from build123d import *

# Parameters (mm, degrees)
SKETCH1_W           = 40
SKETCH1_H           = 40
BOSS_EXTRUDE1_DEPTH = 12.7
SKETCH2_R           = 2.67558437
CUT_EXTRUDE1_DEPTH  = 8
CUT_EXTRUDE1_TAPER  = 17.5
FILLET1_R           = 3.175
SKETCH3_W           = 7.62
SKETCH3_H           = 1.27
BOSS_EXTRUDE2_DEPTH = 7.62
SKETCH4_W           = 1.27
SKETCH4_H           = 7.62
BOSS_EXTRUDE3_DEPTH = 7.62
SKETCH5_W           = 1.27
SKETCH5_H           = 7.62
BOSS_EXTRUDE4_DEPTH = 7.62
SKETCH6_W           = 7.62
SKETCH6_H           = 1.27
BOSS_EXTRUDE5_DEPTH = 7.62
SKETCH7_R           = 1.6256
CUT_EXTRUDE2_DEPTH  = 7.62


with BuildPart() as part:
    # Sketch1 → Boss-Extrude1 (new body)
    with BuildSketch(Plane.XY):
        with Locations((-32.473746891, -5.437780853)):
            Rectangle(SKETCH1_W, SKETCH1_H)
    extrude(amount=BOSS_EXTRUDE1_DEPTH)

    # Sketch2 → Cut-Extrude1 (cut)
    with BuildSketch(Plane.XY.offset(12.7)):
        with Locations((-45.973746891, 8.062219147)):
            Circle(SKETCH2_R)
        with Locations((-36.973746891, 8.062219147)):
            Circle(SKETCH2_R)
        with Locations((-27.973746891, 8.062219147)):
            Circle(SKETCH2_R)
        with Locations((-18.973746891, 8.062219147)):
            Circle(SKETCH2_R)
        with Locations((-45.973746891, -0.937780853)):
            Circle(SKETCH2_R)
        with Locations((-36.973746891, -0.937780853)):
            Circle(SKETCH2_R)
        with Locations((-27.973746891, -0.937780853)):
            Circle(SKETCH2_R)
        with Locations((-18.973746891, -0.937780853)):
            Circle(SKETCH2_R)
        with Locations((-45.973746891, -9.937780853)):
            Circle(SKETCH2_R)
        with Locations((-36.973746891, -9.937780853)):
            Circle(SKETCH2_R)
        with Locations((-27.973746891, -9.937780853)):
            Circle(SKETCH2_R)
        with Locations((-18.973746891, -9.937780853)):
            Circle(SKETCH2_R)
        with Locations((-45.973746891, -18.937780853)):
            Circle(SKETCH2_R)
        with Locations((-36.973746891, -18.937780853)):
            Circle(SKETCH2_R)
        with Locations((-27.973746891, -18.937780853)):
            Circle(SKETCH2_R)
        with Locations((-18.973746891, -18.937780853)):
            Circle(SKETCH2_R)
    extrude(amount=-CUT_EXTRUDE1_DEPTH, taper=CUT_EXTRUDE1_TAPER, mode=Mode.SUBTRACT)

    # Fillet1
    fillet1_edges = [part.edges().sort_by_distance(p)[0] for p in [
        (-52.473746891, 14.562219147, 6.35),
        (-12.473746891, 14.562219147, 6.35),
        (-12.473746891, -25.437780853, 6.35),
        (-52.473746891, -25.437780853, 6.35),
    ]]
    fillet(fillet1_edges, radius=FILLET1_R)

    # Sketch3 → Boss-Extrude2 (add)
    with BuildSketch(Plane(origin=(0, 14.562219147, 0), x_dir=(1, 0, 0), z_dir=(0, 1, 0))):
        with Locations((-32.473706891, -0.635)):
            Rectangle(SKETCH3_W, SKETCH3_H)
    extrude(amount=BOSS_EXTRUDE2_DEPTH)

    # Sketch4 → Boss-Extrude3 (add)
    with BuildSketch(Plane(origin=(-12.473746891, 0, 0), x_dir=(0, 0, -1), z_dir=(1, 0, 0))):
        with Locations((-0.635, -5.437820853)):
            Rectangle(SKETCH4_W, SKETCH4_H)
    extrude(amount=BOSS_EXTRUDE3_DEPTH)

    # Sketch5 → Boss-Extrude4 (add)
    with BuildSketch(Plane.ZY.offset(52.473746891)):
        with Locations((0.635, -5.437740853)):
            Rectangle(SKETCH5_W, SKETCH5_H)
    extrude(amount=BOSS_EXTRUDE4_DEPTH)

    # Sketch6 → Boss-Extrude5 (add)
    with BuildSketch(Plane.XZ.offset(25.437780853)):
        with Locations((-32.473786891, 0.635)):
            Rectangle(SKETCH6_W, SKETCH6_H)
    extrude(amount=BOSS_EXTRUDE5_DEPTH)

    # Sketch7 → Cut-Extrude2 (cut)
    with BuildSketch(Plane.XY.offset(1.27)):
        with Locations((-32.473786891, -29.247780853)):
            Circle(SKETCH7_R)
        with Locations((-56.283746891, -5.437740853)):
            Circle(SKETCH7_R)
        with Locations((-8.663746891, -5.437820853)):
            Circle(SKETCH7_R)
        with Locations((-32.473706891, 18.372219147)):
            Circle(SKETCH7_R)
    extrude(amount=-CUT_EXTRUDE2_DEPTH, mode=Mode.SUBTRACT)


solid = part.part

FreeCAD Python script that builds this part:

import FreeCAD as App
import Part
import Sketcher
Q = App.Units.Quantity


def edges_at(feature, points):
    """Names of the edges that pass closest to the given points."""
    edges = feature.Shape.Edges
    near = lambda p: min(range(len(edges)), key=lambda i: edges[i].distToShape(Part.Vertex(*p))[0])
    return sorted({f"Edge{near(p) + 1}" for p in points})

doc = App.newDocument("Part")
body = doc.addObject("PartDesign::Body", "Body")

# Sketch on XY plane
sketch1 = body.newObject("Sketcher::SketchObject", "Sketch")
sketch1.AttachmentSupport = (doc.getObject("XY_Plane"), [""])
sketch1.MapMode = "FlatFace"
sketch1.addGeometry([
    Part.LineSegment(App.Vector(-52.473747, 14.562219, 0), App.Vector(-52.473747, -25.437781, 0)),
    Part.LineSegment(App.Vector(-52.473747, -25.437781, 0), App.Vector(-12.473747, -25.437781, 0)),
    Part.LineSegment(App.Vector(-12.473747, -25.437781, 0), App.Vector(-12.473747, 14.562219, 0)),
    Part.LineSegment(App.Vector(-12.473747, 14.562219, 0), App.Vector(-52.473747, 14.562219, 0)),
], False)
sketch1.addConstraint([
    Sketcher.Constraint("Coincident", 0, 2, 1, 1),
    Sketcher.Constraint("Coincident", 1, 2, 2, 1),
    Sketcher.Constraint("Coincident", 2, 2, 3, 1),
    Sketcher.Constraint("Coincident", 3, 2, 0, 1),
    Sketcher.Constraint("Vertical", 0),
    Sketcher.Constraint("Horizontal", 1),
    Sketcher.Constraint("Vertical", 2),
    Sketcher.Constraint("Horizontal", 3),
    Sketcher.Constraint("Equal", 3, 0),
    Sketcher.Constraint("DistanceX", 1, 1, 1, 2, Q("40 mm")),
    Sketcher.Constraint("DistanceY", 0, 2, -1, 1, Q("25.437781 mm")),
    Sketcher.Constraint("DistanceX", 0, 2, -1, 1, Q("52.473747 mm")),
])
pad1 = body.newObject("PartDesign::Pad", "Pad")
pad1.Profile = sketch1
pad1.Length = Q("0.5 in")

# Sketch on XY plane
sketch2 = body.newObject("Sketcher::SketchObject", "Sketch001")
sketch2.AttachmentSupport = (doc.getObject("XY_Plane"), [""])
sketch2.MapMode = "FlatFace"
sketch2.AttachmentOffset = App.Placement(App.Vector(0, 0, 0.5 * 25.4), App.Rotation())
sketch2.addGeometry([
    Part.Circle(App.Vector(-45.973747, 8.062219, 0), App.Vector(0, 0, 1), 2.675584),  # 0
    Part.Circle(App.Vector(-36.973747, 8.062219, 0), App.Vector(0, 0, 1), 2.675584),  # 1
    Part.Circle(App.Vector(-27.973747, 8.062219, 0), App.Vector(0, 0, 1), 2.675584),  # 2
    Part.Circle(App.Vector(-18.973747, 8.062219, 0), App.Vector(0, 0, 1), 2.675584),  # 3
    Part.Circle(App.Vector(-45.973747, -0.937781, 0), App.Vector(0, 0, 1), 2.675584),  # 4
    Part.Circle(App.Vector(-36.973747, -0.937781, 0), App.Vector(0, 0, 1), 2.675584),  # 5
    Part.Circle(App.Vector(-27.973747, -0.937781, 0), App.Vector(0, 0, 1), 2.675584),  # 6
    Part.Circle(App.Vector(-18.973747, -0.937781, 0), App.Vector(0, 0, 1), 2.675584),  # 7
    Part.Circle(App.Vector(-45.973747, -9.937781, 0), App.Vector(0, 0, 1), 2.675584),  # 8
    Part.Circle(App.Vector(-36.973747, -9.937781, 0), App.Vector(0, 0, 1), 2.675584),  # 9
    Part.Circle(App.Vector(-27.973747, -9.937781, 0), App.Vector(0, 0, 1), 2.675584),  # 10
    Part.Circle(App.Vector(-18.973747, -9.937781, 0), App.Vector(0, 0, 1), 2.675584),  # 11
    Part.Circle(App.Vector(-45.973747, -18.937781, 0), App.Vector(0, 0, 1), 2.675584),  # 12
    Part.Circle(App.Vector(-36.973747, -18.937781, 0), App.Vector(0, 0, 1), 2.675584),  # 13
    Part.Circle(App.Vector(-27.973747, -18.937781, 0), App.Vector(0, 0, 1), 2.675584),  # 14
    Part.Circle(App.Vector(-18.973747, -18.937781, 0), App.Vector(0, 0, 1), 2.675584),  # 15
], False)
sketch2.addConstraint([
    Sketcher.Constraint("Equal", 0, 1),
    Sketcher.Constraint("Equal", 1, 2),
    Sketcher.Constraint("Equal", 2, 3),
    Sketcher.Constraint("Equal", 3, 4),
    Sketcher.Constraint("Equal", 4, 5),
    Sketcher.Constraint("Equal", 5, 6),
    Sketcher.Constraint("Equal", 6, 7),
    Sketcher.Constraint("Equal", 7, 8),
    Sketcher.Constraint("Equal", 8, 9),
    Sketcher.Constraint("Equal", 9, 10),
    Sketcher.Constraint("Equal", 10, 11),
    Sketcher.Constraint("Equal", 11, 12),
    Sketcher.Constraint("Equal", 12, 13),
    Sketcher.Constraint("Equal", 13, 14),
    Sketcher.Constraint("Equal", 14, 15),
    Sketcher.Constraint("Horizontal", 0, 3, 1, 3),
    Sketcher.Constraint("Horizontal", 1, 3, 2, 3),
    Sketcher.Constraint("Horizontal", 2, 3, 3, 3),
    Sketcher.Constraint("Horizontal", 4, 3, 5, 3),
    Sketcher.Constraint("Horizontal", 5, 3, 6, 3),
    Sketcher.Constraint("Horizontal", 6, 3, 7, 3),
    Sketcher.Constraint("Horizontal", 8, 3, 9, 3),
    Sketcher.Constraint("Horizontal", 9, 3, 10, 3),
    Sketcher.Constraint("Horizontal", 10, 3, 11, 3),
    Sketcher.Constraint("Horizontal", 12, 3, 13, 3),
    Sketcher.Constraint("Horizontal", 13, 3, 14, 3),
    Sketcher.Constraint("Horizontal", 14, 3, 15, 3),
    Sketcher.Constraint("Vertical", 0, 3, 4, 3),
    Sketcher.Constraint("Vertical", 1, 3, 5, 3),
    Sketcher.Constraint("Vertical", 2, 3, 6, 3),
    Sketcher.Constraint("Vertical", 3, 3, 7, 3),
    Sketcher.Constraint("Vertical", 4, 3, 8, 3),
    Sketcher.Constraint("Vertical", 5, 3, 9, 3),
    Sketcher.Constraint("Vertical", 6, 3, 10, 3),
    Sketcher.Constraint("Vertical", 7, 3, 11, 3),
    Sketcher.Constraint("Vertical", 8, 3, 12, 3),
    Sketcher.Constraint("Vertical", 9, 3, 13, 3),
    Sketcher.Constraint("Vertical", 10, 3, 14, 3),
    Sketcher.Constraint("Vertical", 11, 3, 15, 3),
    Sketcher.Constraint("Diameter", 0, Q("5.351169 mm")),
    Sketcher.Constraint("DistanceX", 0, 3, 1, 3, Q("9 mm")),
    Sketcher.Constraint("DistanceX", 1, 3, 2, 3, Q("9 mm")),
    Sketcher.Constraint("DistanceX", 2, 3, 3, 3, Q("9 mm")),
    Sketcher.Constraint("DistanceY", 4, 3, 0, 3, Q("9 mm")),
    Sketcher.Constraint("DistanceY", 8, 3, 4, 3, Q("9 mm")),
    Sketcher.Constraint("DistanceY", 12, 3, 8, 3, Q("9 mm")),
    Sketcher.Constraint("DistanceY", -1, 1, 0, 3, Q("8.062219 mm")),
    Sketcher.Constraint("DistanceX", 0, 3, -1, 1, Q("45.973747 mm")),
])
pocket1 = body.newObject("PartDesign::Pocket", "Pocket")
pocket1.Profile = sketch2
pocket1.Length = 8
pocket1.TaperAngle = -17.5
doc.recompute()

fillet = body.newObject("PartDesign::Fillet", "Fillet")
fillet.Base = (pocket1, edges_at(pocket1, [
    (-52.474, 14.562, 6.35),
    (-12.474, 14.562, 6.35),
    (-12.474, -25.438, 6.35),
    (-52.474, -25.438, 6.35),
]))
fillet.Radius = Q("0.125 in")

# Sketch on XZ plane
sketch3 = body.newObject("Sketcher::SketchObject", "Sketch002")
sketch3.AttachmentSupport = (doc.getObject("XZ_Plane"), [""])
sketch3.MapMode = "FlatFace"
sketch3.AttachmentOffset = App.Placement(App.Vector(0, 0, -14.562219), App.Rotation())
sketch3.addGeometry([
    Part.LineSegment(App.Vector(-36.283707, 0, 0), App.Vector(-36.283707, 1.27, 0)),
    Part.LineSegment(App.Vector(-36.283707, 1.27, 0), App.Vector(-28.663707, 1.27, 0)),
    Part.LineSegment(App.Vector(-28.663707, 1.27, 0), App.Vector(-28.663707, 0, 0)),
    Part.LineSegment(App.Vector(-28.663707, 0, 0), App.Vector(-36.283707, 0, 0)),
], False)
sketch3.addConstraint([
    Sketcher.Constraint("Coincident", 0, 2, 1, 1),
    Sketcher.Constraint("Coincident", 1, 2, 2, 1),
    Sketcher.Constraint("Coincident", 2, 2, 3, 1),
    Sketcher.Constraint("Coincident", 3, 2, 0, 1),
    Sketcher.Constraint("Vertical", 0),
    Sketcher.Constraint("Horizontal", 1),
    Sketcher.Constraint("Vertical", 2),
    Sketcher.Constraint("Horizontal", 3),
    Sketcher.Constraint("PointOnObject", 2, 2, -1),
    Sketcher.Constraint("DistanceX", 1, 1, 1, 2, Q("0.3 in")),
    Sketcher.Constraint("DistanceY", 0, 1, 0, 2, Q("0.05 in")),
    Sketcher.Constraint("DistanceX", 0, 2, -1, 1, Q("36.283707 mm")),
])
pad2 = body.newObject("PartDesign::Pad", "Pad001")
pad2.Profile = sketch3
pad2.Length = Q("0.3 in")
pad2.Reversed = True

# Sketch on YZ plane
sketch4 = body.newObject("Sketcher::SketchObject", "Sketch003")
sketch4.AttachmentSupport = (doc.getObject("YZ_Plane"), [""])
sketch4.MapMode = "FlatFace"
sketch4.AttachmentOffset = App.Placement(App.Vector(0, 0, -12.473747), App.Rotation())
sketch4.addGeometry([
    Part.LineSegment(App.Vector(-1.627821, 1.27, 0), App.Vector(-9.247821, 1.27, 0)),
    Part.LineSegment(App.Vector(-9.247821, 1.27, 0), App.Vector(-9.247821, 0, 0)),
    Part.LineSegment(App.Vector(-9.247821, 0, 0), App.Vector(-1.627821, 0, 0)),
    Part.LineSegment(App.Vector(-1.627821, 0, 0), App.Vector(-1.627821, 1.27, 0)),
], False)
sketch4.addConstraint([
    Sketcher.Constraint("Coincident", 0, 2, 1, 1),
    Sketcher.Constraint("Coincident", 1, 2, 2, 1),
    Sketcher.Constraint("Coincident", 2, 2, 3, 1),
    Sketcher.Constraint("Coincident", 3, 2, 0, 1),
    Sketcher.Constraint("Horizontal", 0),
    Sketcher.Constraint("Vertical", 1),
    Sketcher.Constraint("Horizontal", 2),
    Sketcher.Constraint("Vertical", 3),
    Sketcher.Constraint("PointOnObject", 1, 2, -1),
    Sketcher.Constraint("DistanceX", 0, 2, 0, 1, Q("0.3 in")),
    Sketcher.Constraint("DistanceY", 1, 2, 1, 1, Q("0.05 in")),
    Sketcher.Constraint("DistanceX", 0, 2, -1, 1, Q("9.247821 mm")),
])
pad3 = body.newObject("PartDesign::Pad", "Pad002")
pad3.Profile = sketch4
pad3.Length = Q("0.3 in")

# Sketch on YZ plane
sketch5 = body.newObject("Sketcher::SketchObject", "Sketch004")
sketch5.AttachmentSupport = (doc.getObject("YZ_Plane"), [""])
sketch5.MapMode = "FlatFace"
sketch5.AttachmentOffset = App.Placement(App.Vector(0, 0, -52.473747), App.Rotation())
sketch5.addGeometry([
    Part.LineSegment(App.Vector(-1.627741, 0, 0), App.Vector(-9.247741, 0, 0)),
    Part.LineSegment(App.Vector(-9.247741, 0, 0), App.Vector(-9.247741, 1.27, 0)),
    Part.LineSegment(App.Vector(-9.247741, 1.27, 0), App.Vector(-1.627741, 1.27, 0)),
    Part.LineSegment(App.Vector(-1.627741, 1.27, 0), App.Vector(-1.627741, 0, 0)),
], False)
sketch5.addConstraint([
    Sketcher.Constraint("Coincident", 0, 2, 1, 1),
    Sketcher.Constraint("Coincident", 1, 2, 2, 1),
    Sketcher.Constraint("Coincident", 2, 2, 3, 1),
    Sketcher.Constraint("Coincident", 3, 2, 0, 1),
    Sketcher.Constraint("Horizontal", 0),
    Sketcher.Constraint("Vertical", 1),
    Sketcher.Constraint("Horizontal", 2),
    Sketcher.Constraint("Vertical", 3),
    Sketcher.Constraint("PointOnObject", 0, 2, -1),
    Sketcher.Constraint("DistanceX", 0, 2, 0, 1, Q("0.3 in")),
    Sketcher.Constraint("DistanceY", 1, 1, 1, 2, Q("0.05 in")),
    Sketcher.Constraint("DistanceX", 0, 2, -1, 1, Q("9.247741 mm")),
])
pad4 = body.newObject("PartDesign::Pad", "Pad003")
pad4.Profile = sketch5
pad4.Length = Q("0.3 in")
pad4.Reversed = True

# Sketch on XZ plane
sketch6 = body.newObject("Sketcher::SketchObject", "Sketch005")
sketch6.AttachmentSupport = (doc.getObject("XZ_Plane"), [""])
sketch6.MapMode = "FlatFace"
sketch6.AttachmentOffset = App.Placement(App.Vector(0, 0, 25.437781), App.Rotation())
sketch6.addGeometry([
    Part.LineSegment(App.Vector(-36.283787, 1.27, 0), App.Vector(-36.283787, 0, 0)),
    Part.LineSegment(App.Vector(-36.283787, 0, 0), App.Vector(-28.663787, 0, 0)),
    Part.LineSegment(App.Vector(-28.663787, 0, 0), App.Vector(-28.663787, 1.27, 0)),
    Part.LineSegment(App.Vector(-28.663787, 1.27, 0), App.Vector(-36.283787, 1.27, 0)),
], False)
sketch6.addConstraint([
    Sketcher.Constraint("Coincident", 0, 2, 1, 1),
    Sketcher.Constraint("Coincident", 1, 2, 2, 1),
    Sketcher.Constraint("Coincident", 2, 2, 3, 1),
    Sketcher.Constraint("Coincident", 3, 2, 0, 1),
    Sketcher.Constraint("Vertical", 0),
    Sketcher.Constraint("Horizontal", 1),
    Sketcher.Constraint("Vertical", 2),
    Sketcher.Constraint("Horizontal", 3),
    Sketcher.Constraint("PointOnObject", 0, 2, -1),
    Sketcher.Constraint("DistanceX", 1, 1, 1, 2, Q("0.3 in")),
    Sketcher.Constraint("DistanceY", 0, 2, 0, 1, Q("0.05 in")),
    Sketcher.Constraint("DistanceX", 0, 2, -1, 1, Q("36.283787 mm")),
])
pad5 = body.newObject("PartDesign::Pad", "Pad004")
pad5.Profile = sketch6
pad5.Length = Q("0.3 in")

# Sketch on XY plane
sketch7 = body.newObject("Sketcher::SketchObject", "Sketch006")
sketch7.AttachmentSupport = (doc.getObject("XY_Plane"), [""])
sketch7.MapMode = "FlatFace"
sketch7.AttachmentOffset = App.Placement(App.Vector(0, 0, 0.05 * 25.4), App.Rotation())
sketch7.addGeometry([
    Part.Circle(App.Vector(-32.473787, -29.247781, 0), App.Vector(0, 0, 1), 1.6256),
    Part.Circle(App.Vector(-56.283747, -5.437741, 0), App.Vector(0, 0, 1), 1.6256),
    Part.Circle(App.Vector(-8.663747, -5.437821, 0), App.Vector(0, 0, 1), 1.6256),
    Part.Circle(App.Vector(-32.473707, 18.372219, 0), App.Vector(0, 0, 1), 1.6256),
], False)
sketch7.addConstraint([
    Sketcher.Constraint("Equal", 0, 1),
    Sketcher.Constraint("Equal", 1, 2),
    Sketcher.Constraint("Equal", 2, 3),
    Sketcher.Constraint("Diameter", 0, Q("0.128 in")),
    Sketcher.Constraint("DistanceX", 1, 3, 0, 3, Q("0.9374 in")),
    Sketcher.Constraint("DistanceY", 0, 3, 2, 3, Q("0.9374 in")),
    Sketcher.Constraint("DistanceY", 1, 3, 3, 3, Q("0.9374 in")),
    Sketcher.Constraint("DistanceX", 3, 3, 2, 3, Q("0.9374 in")),
    Sketcher.Constraint("DistanceX", 1, 3, 2, 3, Q("47.62 mm")),
    Sketcher.Constraint("DistanceY", 0, 3, 3, 3, Q("47.62 mm")),
    Sketcher.Constraint("DistanceY", 0, 3, -1, 1, Q("29.247781 mm")),
    Sketcher.Constraint("DistanceX", 0, 3, -1, 1, Q("32.473787 mm")),
])
pocket2 = body.newObject("PartDesign::Pocket", "Pocket001")
pocket2.Profile = sketch7
pocket2.Length = Q("0.3 in")

doc.recompute()
